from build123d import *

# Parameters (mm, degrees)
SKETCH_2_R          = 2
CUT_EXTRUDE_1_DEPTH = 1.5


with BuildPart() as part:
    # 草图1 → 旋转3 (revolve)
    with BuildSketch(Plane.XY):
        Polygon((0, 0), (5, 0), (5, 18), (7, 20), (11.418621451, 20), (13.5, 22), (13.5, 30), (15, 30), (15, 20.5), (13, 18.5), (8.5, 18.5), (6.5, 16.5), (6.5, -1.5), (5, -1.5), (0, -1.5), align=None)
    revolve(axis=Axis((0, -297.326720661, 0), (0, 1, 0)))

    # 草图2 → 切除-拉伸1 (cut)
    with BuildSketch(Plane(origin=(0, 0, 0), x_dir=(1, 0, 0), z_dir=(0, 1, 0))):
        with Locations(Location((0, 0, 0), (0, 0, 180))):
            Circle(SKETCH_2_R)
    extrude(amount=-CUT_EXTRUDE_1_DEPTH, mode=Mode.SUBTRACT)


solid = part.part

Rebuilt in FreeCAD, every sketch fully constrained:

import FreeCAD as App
import Part
import Sketcher
from FreeCAD import Vector
Q = App.Units.Quantity


def add_polygon(sketch, points):
    """Adds a closed chain of lines whose ends are joined by coincident constraints."""
    first, n = sketch.GeometryCount, len(points)
    for a, b in zip(points, points[1:] + points[:1]):
        sketch.addGeometry(Part.LineSegment(App.Vector(*a, 0), App.Vector(*b, 0)), False)
    for i in range(n):
        sketch.addConstraint(Sketcher.Constraint("Coincident", first + i, 2, first + (i + 1) % n, 1))

doc = App.newDocument("Part")
body = doc.addObject("PartDesign::Body", "Body")

sketch1 = doc.addObject("Sketcher::SketchObject", "Sketch")
body.addObject(sketch1)
sketch1.AttachmentSupport = (doc.XY_Plane, [""])
sketch1.MapMode = "FlatFace"
add_polygon(sketch1, [(5, 0), (0, 0), (0, -1.5), (6.5, -1.5), (6.5, 16.5), (8.5, 18.5), (13, 18.5), (15, 20.5), (15, 30), (13.5, 30), (13.5, 22), (11.418621, 20), (7, 20), (5, 18)])
sketch1.addConstraint([
    Sketcher.Constraint("Horizontal", 0),
    Sketcher.Constraint("Vertical", 1),
    Sketcher.Constraint("Horizontal", 2),
    Sketcher.Constraint("Vertical", 3),
    Sketcher.Constraint("Horizontal", 5),
    Sketcher.Constraint("Vertical", 7),
    Sketcher.Constraint("Horizontal", 8),
    Sketcher.Constraint("Vertical", 9),
    Sketcher.Constraint("Horizontal", 11),
    Sketcher.Constraint("Vertical", 13),
    Sketcher.Constraint("Coincident", 0, 2, -1, 1),
    Sketcher.Constraint("Parallel", 4, 6),
    Sketcher.Constraint("Parallel", 6, 12),
    Sketcher.Constraint("Equal", 8, 1),
    Sketcher.Constraint("Equal", 3, 13),
    Sketcher.Constraint("Equal", 4, 6),
    Sketcher.Constraint("Equal", 6, 12),
    Sketcher.Constraint("DistanceX", 0, 2, 0, 1, Q("5 mm")),
    Sketcher.Constraint("DistanceY", 3, 1, 3, 2, Q("18 mm")),
    Sketcher.Constraint("DistanceY", 9, 2, 9, 1, Q("8 mm")),
    Sketcher.Constraint("Angle", 4, Q("45 deg")),
    Sketcher.Constraint("DistanceX", 2, 1, 2, 2, Q("6.5 mm")),
    Sketcher.Constraint("DistanceX", 5, 1, 5, 2, Q("4.5 mm")),
    Sketcher.Constraint("DistanceX", 8, 2, 8, 1, Q("1.5 mm")),
    Sketcher.Constraint("DistanceY", 7, 1, 7, 2, Q("9.5 mm")),
    Sketcher.Constraint("DistanceX", -1, 1, 5, 2, Q("13 mm")),
    Sketcher.Constraint("DistanceX", 11, 2, 11, 1, Q("4.418621 mm")),
])
revolution = doc.addObject("PartDesign::Revolution", "Revolution")
body.addObject(revolution)
revolution.Profile = sketch1
revolution.ReferenceAxis = (sketch1, ["V_Axis"])
revolution.Angle = 360

sketch2 = doc.addObject("Sketcher::SketchObject", "Sketch001")
body.addObject(sketch2)
sketch2.AttachmentSupport = (doc.XZ_Plane, [""])
sketch2.MapMode = "FlatFace"
sketch2.addGeometry(Part.Circle(Vector(0, 0, 0), Vector(0, 0, 1), 2), False)
sketch2.addConstraint([
    Sketcher.Constraint("Coincident", 0, 3, -1, 1),
    Sketcher.Constraint("Diameter", 0, Q("4 mm")),
])
pocket1 = doc.addObject("PartDesign::Pocket", "Pocket")
body.addObject(pocket1)
pocket1.Profile = sketch2
pocket1.Length = 1.5
pocket1.Reversed = True

doc.recompute()
